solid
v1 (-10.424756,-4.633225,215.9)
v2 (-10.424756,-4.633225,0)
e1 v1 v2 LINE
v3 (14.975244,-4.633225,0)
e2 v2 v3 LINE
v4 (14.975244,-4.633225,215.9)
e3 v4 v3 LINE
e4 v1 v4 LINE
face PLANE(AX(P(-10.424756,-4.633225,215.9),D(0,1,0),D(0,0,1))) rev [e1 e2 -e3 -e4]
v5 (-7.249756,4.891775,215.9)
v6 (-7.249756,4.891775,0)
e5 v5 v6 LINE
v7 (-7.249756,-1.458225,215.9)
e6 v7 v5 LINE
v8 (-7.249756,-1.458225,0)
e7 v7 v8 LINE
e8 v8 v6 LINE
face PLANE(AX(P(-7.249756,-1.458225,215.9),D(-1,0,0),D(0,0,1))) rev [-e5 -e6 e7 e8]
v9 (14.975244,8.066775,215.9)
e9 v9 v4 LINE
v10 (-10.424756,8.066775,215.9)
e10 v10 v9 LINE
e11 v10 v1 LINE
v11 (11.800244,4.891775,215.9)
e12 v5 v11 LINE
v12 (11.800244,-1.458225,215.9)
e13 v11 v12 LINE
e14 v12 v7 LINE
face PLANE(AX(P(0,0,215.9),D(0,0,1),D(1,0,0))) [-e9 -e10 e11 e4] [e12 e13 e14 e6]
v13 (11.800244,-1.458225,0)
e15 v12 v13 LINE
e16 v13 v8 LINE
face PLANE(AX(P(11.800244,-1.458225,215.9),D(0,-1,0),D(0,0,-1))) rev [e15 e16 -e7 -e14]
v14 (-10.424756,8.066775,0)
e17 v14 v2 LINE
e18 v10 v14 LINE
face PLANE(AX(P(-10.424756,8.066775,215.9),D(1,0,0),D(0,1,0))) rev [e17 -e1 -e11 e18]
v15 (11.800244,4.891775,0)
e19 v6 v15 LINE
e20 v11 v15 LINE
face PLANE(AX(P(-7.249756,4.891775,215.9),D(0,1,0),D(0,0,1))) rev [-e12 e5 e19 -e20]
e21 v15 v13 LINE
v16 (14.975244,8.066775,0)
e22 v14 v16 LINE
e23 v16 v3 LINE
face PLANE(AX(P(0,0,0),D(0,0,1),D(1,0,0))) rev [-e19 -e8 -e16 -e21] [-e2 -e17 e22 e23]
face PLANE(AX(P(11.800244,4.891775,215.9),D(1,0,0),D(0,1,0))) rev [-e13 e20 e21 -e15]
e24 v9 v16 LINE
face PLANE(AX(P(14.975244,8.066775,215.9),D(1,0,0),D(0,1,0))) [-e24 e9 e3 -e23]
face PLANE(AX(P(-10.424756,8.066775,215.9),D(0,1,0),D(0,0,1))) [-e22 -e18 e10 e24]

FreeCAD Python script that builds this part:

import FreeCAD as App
import Part
import Sketcher
from FreeCAD import Vector
Q = App.Units.Quantity


def add_polygon(sketch, points):
    """Adds a closed chain of lines whose ends are joined by coincident constraints."""
    first, n = sketch.GeometryCount, len(points)
    for a, b in zip(points, points[1:] + points[:1]):
        sketch.addGeometry(Part.LineSegment(App.Vector(*a, 0), App.Vector(*b, 0)), False)
    for i in range(n):
        sketch.addConstraint(Sketcher.Constraint("Coincident", first + i, 2, first + (i + 1) % n, 1))

doc = App.newDocument("Part")
body = doc.addObject("PartDesign::Body", "Body")

# Sketch on XY plane
sketch1 = body.newObject("Sketcher::SketchObject", "Sketch")
sketch1.AttachmentSupport = (doc.getObject("XY_Plane"), [""])
sketch1.MapMode = "FlatFace"
add_polygon(sketch1, [(-10.424756, 8.066775), (-10.424756, -4.633225), (14.975244, -4.633225), (14.975244, 8.066775)])  # lines 0-3
sketch1.addConstraint(Sketcher.Constraint("Vertical", 0))
sketch1.addConstraint(Sketcher.Constraint("Horizontal", 1))
sketch1.addConstraint(Sketcher.Constraint("Vertical", 2))
sketch1.addConstraint(Sketcher.Constraint("Horizontal", 3))
sketch1.addConstraint(Sketcher.Constraint("DistanceX", 1, 1, 1, 2, Q("1 in")))
sketch1.addConstraint(Sketcher.Constraint("DistanceY", 0, 2, 0, 1, Q("0.5 in")))
sketch1.addConstraint(Sketcher.Constraint("DistanceX", 0, 2, -1, 1, Q("10.424756 mm")))
sketch1.addConstraint(Sketcher.Constraint("DistanceY", 0, 2, -1, 1, Q("4.633225 mm")))
pad1 = body.newObject("PartDesign::Pad", "Pad")
pad1.Profile = sketch1
pad1.Length = Q("8.5 in")

# Sketch on XY plane
sketch2 = body.newObject("Sketcher::SketchObject", "Sketch001")
sketch2.AttachmentSupport = (doc.getObject("XY_Plane"), [""])
sketch2.MapMode = "FlatFace"
add_polygon(sketch2, [(11.800244, 4.891775), (11.800244, -1.458225), (-7.249756, -1.458225), (-7.249756, 4.891775)])  # lines 0-3
sketch2.addConstraint(Sketcher.Constraint("Vertical", 0))
sketch2.addConstraint(Sketcher.Constraint("Horizontal", 1))
sketch2.addConstraint(Sketcher.Constraint("Vertical", 2))
sketch2.addConstraint(Sketcher.Constraint("Horizontal", 3))
sketch2.addConstraint(Sketcher.Constraint("DistanceX", 1, 2, 1, 1, Q("0.75 in")))
sketch2.addConstraint(Sketcher.Constraint("DistanceY", 0, 2, 0, 1, Q("0.25 in")))
sketch2.addConstraint(Sketcher.Constraint("DistanceX", -1, 1, 0, 2, Q("11.800244 mm")))
sketch2.addConstraint(Sketcher.Constraint("DistanceY", 0, 2, -1, 1, Q("1.458225 mm")))
pocket1 = body.newObject("PartDesign::Pocket", "Pocket")
pocket1.Profile = sketch2
pocket1.Type = "ThroughAll"
pocket1.Reversed = True

doc.recompute()
